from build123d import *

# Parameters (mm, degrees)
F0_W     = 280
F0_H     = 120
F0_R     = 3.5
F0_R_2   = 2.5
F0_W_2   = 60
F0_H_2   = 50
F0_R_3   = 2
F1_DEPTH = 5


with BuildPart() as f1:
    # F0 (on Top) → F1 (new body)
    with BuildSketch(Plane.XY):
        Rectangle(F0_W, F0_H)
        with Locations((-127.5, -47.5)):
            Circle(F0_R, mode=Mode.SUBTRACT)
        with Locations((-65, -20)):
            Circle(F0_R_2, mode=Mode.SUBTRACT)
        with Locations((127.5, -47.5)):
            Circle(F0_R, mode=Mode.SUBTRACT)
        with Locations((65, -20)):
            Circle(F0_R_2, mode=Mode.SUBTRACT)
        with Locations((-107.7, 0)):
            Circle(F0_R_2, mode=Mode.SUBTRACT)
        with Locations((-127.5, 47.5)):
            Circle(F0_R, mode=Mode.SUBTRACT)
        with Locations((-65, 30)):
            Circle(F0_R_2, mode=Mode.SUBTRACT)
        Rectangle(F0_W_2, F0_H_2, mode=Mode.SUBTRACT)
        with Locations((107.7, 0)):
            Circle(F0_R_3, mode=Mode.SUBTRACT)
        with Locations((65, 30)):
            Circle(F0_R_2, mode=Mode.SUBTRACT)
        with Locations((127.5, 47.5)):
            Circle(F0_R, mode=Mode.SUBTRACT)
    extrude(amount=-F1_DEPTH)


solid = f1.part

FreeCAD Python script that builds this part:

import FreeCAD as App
import Part
import Sketcher

V = App.Vector
Q = App.Units.Quantity


def add_polygon(sketch, points):
    """Adds a closed chain of lines whose ends are joined by coincident constraints."""
    first, n = sketch.GeometryCount, len(points)
    for a, b in zip(points, points[1:] + points[:1]):
        sketch.addGeometry(Part.LineSegment(App.Vector(*a, 0), App.Vector(*b, 0)), False)
    for i in range(n):
        sketch.addConstraint(Sketcher.Constraint("Coincident", first + i, 2, first + (i + 1) % n, 1))

doc = App.newDocument("Part")
body = doc.addObject("PartDesign::Body", "Body")

sketch1 = body.newObject("Sketcher::SketchObject", "Sketch")
sketch1.AttachmentSupport = (doc.getObject("XY_Plane"), [""])
sketch1.MapMode = "FlatFace"
add_polygon(sketch1, [(-140, 60), (-140, -60), (140, -60), (140, 60)])
sketch1.addGeometry(Part.Circle(V(-127.5, -47.5, 0), V(0, 0, 1), 3.5), False)
sketch1.addGeometry(Part.Circle(V(-65, -20, 0), V(0, 0, 1), 2.5), False)
sketch1.addGeometry(Part.Circle(V(127.5, -47.5, 0), V(0, 0, 1), 3.5), False)
sketch1.addGeometry(Part.Circle(V(65, -20, 0), V(0, 0, 1), 2.5), False)
sketch1.addGeometry(Part.Circle(V(-107.7, 0, 0), V(0, 0, 1), 2.5), False)
sketch1.addGeometry(Part.Circle(V(-127.5, 47.5, 0), V(0, 0, 1), 3.5), False)
sketch1.addGeometry(Part.Circle(V(-65, 30, 0), V(0, 0, 1), 2.5), False)
add_polygon(sketch1, [(30, -25), (-30, -25), (-30, 25), (30, 25)])
sketch1.addGeometry(Part.Circle(V(107.7, 0, 0), V(0, 0, 1), 2), False)
sketch1.addGeometry(Part.Circle(V(65, 30, 0), V(0, 0, 1), 2.5), False)
sketch1.addGeometry(Part.Circle(V(127.5, 47.5, 0), V(0, 0, 1), 3.5), False)
sketch1.addConstraint([
    Sketcher.Constraint("Vertical", 0),
    Sketcher.Constraint("Horizontal", 1),
    Sketcher.Constraint("Vertical", 2),
    Sketcher.Constraint("Horizontal", 3),
    Sketcher.Constraint("Horizontal", 11),
    Sketcher.Constraint("Vertical", 12),
    Sketcher.Constraint("Horizontal", 13),
    Sketcher.Constraint("Vertical", 14),
    Sketcher.Constraint("Equal", 4, 6),
    Sketcher.Constraint("Equal", 5, 7),
    Sketcher.Constraint("Equal", 7, 8),
    Sketcher.Constraint("Equal", 6, 9),
    Sketcher.Constraint("Equal", 8, 10),
    Sketcher.Constraint("Equal", 10, 16),
    Sketcher.Constraint("Equal", 9, 17),
    Sketcher.Constraint("Symmetric", 6, 3, 9, 3, -1, 1),
    Sketcher.Constraint("Symmetric", 8, 3, 15, 3, -1, 1),
    Sketcher.Constraint("Symmetric", 4, 3, 17, 3, -1, 1),
    Sketcher.Constraint("Symmetric", 0, 2, 2, 2, -1, 1),
    Sketcher.Constraint("Symmetric", 11, 2, 13, 2, -1, 1),
    Sketcher.Constraint("Symmetric", 4, 3, 6, 3, -2),
    Sketcher.Constraint("Symmetric", 5, 3, 7, 3, -2),
    Sketcher.Constraint("Symmetric", 10, 3, 16, 3, -2),
    Sketcher.Constraint("PointOnObject", 8, 3, -1),
    Sketcher.Constraint("Vertical", 5, 3, 10, 3),
    Sketcher.Constraint("Diameter", 4, Q("7 mm")),
    Sketcher.Constraint("Diameter", 5, Q("5 mm")),
    Sketcher.Constraint("Diameter", 15, Q("4 mm")),
    Sketcher.Constraint("DistanceX", 1, 1, 1, 2, Q("280 mm")),
    Sketcher.Constraint("DistanceX", 11, 2, 11, 1, Q("60 mm")),
    Sketcher.Constraint("DistanceY", 0, 2, 0, 1, Q("120 mm")),
    Sketcher.Constraint("DistanceY", 12, 1, 12, 2, Q("50 mm")),
    Sketcher.Constraint("DistanceX", 5, 3, -1, 1, Q("65 mm")),
    Sketcher.Constraint("DistanceY", 5, 3, -1, 1, Q("20 mm")),
    Sketcher.Constraint("DistanceY", -1, 1, 10, 3, Q("30 mm")),
    Sketcher.Constraint("DistanceX", 4, 3, 6, 3, Q("255 mm")),
    Sketcher.Constraint("DistanceY", 4, 3, 9, 3, Q("95 mm")),
    Sketcher.Constraint("DistanceX", 8, 3, -1, 1, Q("107.7 mm")),
])
pad1 = body.newObject("PartDesign::Pad", "Pad")
pad1.Profile = sketch1
pad1.Length = 5
pad1.Reversed = True

doc.recompute()
